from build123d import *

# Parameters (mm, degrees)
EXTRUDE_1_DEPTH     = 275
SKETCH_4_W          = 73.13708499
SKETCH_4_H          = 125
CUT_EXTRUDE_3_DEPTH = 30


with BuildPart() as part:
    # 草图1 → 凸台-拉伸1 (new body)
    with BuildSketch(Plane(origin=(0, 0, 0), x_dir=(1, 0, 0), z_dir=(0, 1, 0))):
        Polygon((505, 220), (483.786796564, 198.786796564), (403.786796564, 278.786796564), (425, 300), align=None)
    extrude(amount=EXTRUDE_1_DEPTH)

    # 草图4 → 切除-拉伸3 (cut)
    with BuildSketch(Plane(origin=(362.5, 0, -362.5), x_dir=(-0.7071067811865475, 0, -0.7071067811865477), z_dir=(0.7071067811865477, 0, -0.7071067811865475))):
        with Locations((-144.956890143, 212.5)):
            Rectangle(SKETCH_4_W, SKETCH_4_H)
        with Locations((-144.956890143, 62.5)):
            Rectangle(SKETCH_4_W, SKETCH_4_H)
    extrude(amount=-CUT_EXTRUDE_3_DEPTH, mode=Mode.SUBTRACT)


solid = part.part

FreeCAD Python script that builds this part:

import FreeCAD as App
import Part
import Sketcher
Q = App.Units.Quantity

doc = App.newDocument("Part")
params = doc.addObject("Spreadsheet::Sheet", "Params")
for row, (alias, value) in enumerate([
    ("sketch1_length", "30 mm"),
    ("pad1_length", "275 mm"),
    ("sketch2_height", "125 mm"),
    ("pocket1_length", "30 mm"),
], start=1):
    params.set(f"A{row}", alias)
    params.set(f"B{row}", "=" + value)
    params.setAlias(f"B{row}", alias)

body = doc.addObject("PartDesign::Body", "Body")

# Sketch on XZ plane
sketch1 = doc.addObject("Sketcher::SketchObject", "Sketch")
body.addObject(sketch1)
sketch1.AttachmentSupport = (doc.XZ_Plane, [""])
sketch1.MapMode = "FlatFace"
sketch1.addGeometry([
    Part.LineSegment(App.Vector(484, -199, 0), App.Vector(505, -220, 0)),
    Part.LineSegment(App.Vector(505, -220, 0), App.Vector(425, -300, 0)),
    Part.LineSegment(App.Vector(425, -300, 0), App.Vector(404, -279, 0)),
    Part.LineSegment(App.Vector(404, -279, 0), App.Vector(484, -199, 0)),
], False)
sketch1.addConstraint([
    Sketcher.Constraint("Coincident", 0, 2, 1, 1),
    Sketcher.Constraint("Coincident", 1, 2, 2, 1),
    Sketcher.Constraint("Coincident", 2, 2, 3, 1),
    Sketcher.Constraint("Coincident", 3, 2, 0, 1),
    Sketcher.Constraint("Perpendicular", 0, 1),
    Sketcher.Constraint("Perpendicular", 1, 2),
    Sketcher.Constraint("Perpendicular", 2, 3),
    Sketcher.Constraint("Angle", 0, Q("-45 deg")),
    Sketcher.Constraint("Distance", 0, 30.0),
    Sketcher.Constraint("DistanceX", -1, 1, 0, 2, 505.0),
    Sketcher.Constraint("DistanceY", 0, 2, -1, 1, 220.0),
    Sketcher.Constraint("DistanceX", -1, 1, 1, 2, 425.0),
])
sketch1.setExpression("Constraints[8]", "Params.sketch1_length")
pad1 = doc.addObject("PartDesign::Pad", "Pad")
body.addObject(pad1)
pad1.Profile = sketch1
pad1.setExpression("Length", "Params.pad1_length")
pad1.Reversed = True

# Sketch on an angled plane
sketch2 = doc.addObject("Sketcher::SketchObject", "Sketch001")
body.addObject(sketch2)
sketch2.Placement = App.Placement(App.Vector(362.5, 0, -362.5), App.Rotation(App.Vector(-0.707106781, 0, -0.707106781), App.Vector(0, 0.999999999, 0), App.Vector(0.707106781, 0, -0.707106781), "ZXY"))
sketch2.addGeometry([
    Part.LineSegment(App.Vector(-182, 275, 0), App.Vector(-182, 150, 0)),  # 0
    Part.LineSegment(App.Vector(-182, 150, 0), App.Vector(-108, 150, 0)),  # 1
    Part.LineSegment(App.Vector(-108, 150, 0), App.Vector(-108, 275, 0)),  # 2
    Part.LineSegment(App.Vector(-108, 275, 0), App.Vector(-182, 275, 0)),  # 3
    Part.LineSegment(App.Vector(-182, 125, 0), App.Vector(-182, 0, 0)),  # 4
    Part.LineSegment(App.Vector(-182, 0, 0), App.Vector(-108, 0, 0)),  # 5
    Part.LineSegment(App.Vector(-108, 0, 0), App.Vector(-108, 125, 0)),  # 6
    Part.LineSegment(App.Vector(-108, 125, 0), App.Vector(-182, 125, 0)),  # 7
], False)
sketch2.addConstraint([
    Sketcher.Constraint("Coincident", 0, 2, 1, 1),
    Sketcher.Constraint("Coincident", 1, 2, 2, 1),
    Sketcher.Constraint("Coincident", 2, 2, 3, 1),
    Sketcher.Constraint("Coincident", 3, 2, 0, 1),
    Sketcher.Constraint("Coincident", 4, 2, 5, 1),
    Sketcher.Constraint("Coincident", 5, 2, 6, 1),
    Sketcher.Constraint("Coincident", 6, 2, 7, 1),
    Sketcher.Constraint("Coincident", 7, 2, 4, 1),
    Sketcher.Constraint("Vertical", 0),
    Sketcher.Constraint("Horizontal", 1),
    Sketcher.Constraint("Vertical", 2),
    Sketcher.Constraint("Horizontal", 3),
    Sketcher.Constraint("Vertical", 4),
    Sketcher.Constraint("Horizontal", 5),
    Sketcher.Constraint("Vertical", 6),
    Sketcher.Constraint("Horizontal", 7),
    Sketcher.Constraint("PointOnObject", 4, 2, -1),
    Sketcher.Constraint("Vertical", 3, 2, 4, 2),
    Sketcher.Constraint("Vertical", 2, 2, 5, 2),
    Sketcher.Constraint("Equal", 2, 4),
    Sketcher.Constraint("DistanceY", 0, 2, 0, 1, 125.0),
    Sketcher.Constraint("DistanceY", -1, 1, 0, 2, 150.0),
    Sketcher.Constraint("DistanceX", 1, 1, 1, 2, 73.137085),
    Sketcher.Constraint("DistanceX", 0, 2, -1, 1, 181.525433),
])
sketch2.setExpression("Constraints[20]", "Params.sketch2_height")
pocket1 = doc.addObject("PartDesign::Pocket", "Pocket")
body.addObject(pocket1)
pocket1.Profile = sketch2
pocket1.setExpression("Length", "Params.pocket1_length")

doc.recompute()
